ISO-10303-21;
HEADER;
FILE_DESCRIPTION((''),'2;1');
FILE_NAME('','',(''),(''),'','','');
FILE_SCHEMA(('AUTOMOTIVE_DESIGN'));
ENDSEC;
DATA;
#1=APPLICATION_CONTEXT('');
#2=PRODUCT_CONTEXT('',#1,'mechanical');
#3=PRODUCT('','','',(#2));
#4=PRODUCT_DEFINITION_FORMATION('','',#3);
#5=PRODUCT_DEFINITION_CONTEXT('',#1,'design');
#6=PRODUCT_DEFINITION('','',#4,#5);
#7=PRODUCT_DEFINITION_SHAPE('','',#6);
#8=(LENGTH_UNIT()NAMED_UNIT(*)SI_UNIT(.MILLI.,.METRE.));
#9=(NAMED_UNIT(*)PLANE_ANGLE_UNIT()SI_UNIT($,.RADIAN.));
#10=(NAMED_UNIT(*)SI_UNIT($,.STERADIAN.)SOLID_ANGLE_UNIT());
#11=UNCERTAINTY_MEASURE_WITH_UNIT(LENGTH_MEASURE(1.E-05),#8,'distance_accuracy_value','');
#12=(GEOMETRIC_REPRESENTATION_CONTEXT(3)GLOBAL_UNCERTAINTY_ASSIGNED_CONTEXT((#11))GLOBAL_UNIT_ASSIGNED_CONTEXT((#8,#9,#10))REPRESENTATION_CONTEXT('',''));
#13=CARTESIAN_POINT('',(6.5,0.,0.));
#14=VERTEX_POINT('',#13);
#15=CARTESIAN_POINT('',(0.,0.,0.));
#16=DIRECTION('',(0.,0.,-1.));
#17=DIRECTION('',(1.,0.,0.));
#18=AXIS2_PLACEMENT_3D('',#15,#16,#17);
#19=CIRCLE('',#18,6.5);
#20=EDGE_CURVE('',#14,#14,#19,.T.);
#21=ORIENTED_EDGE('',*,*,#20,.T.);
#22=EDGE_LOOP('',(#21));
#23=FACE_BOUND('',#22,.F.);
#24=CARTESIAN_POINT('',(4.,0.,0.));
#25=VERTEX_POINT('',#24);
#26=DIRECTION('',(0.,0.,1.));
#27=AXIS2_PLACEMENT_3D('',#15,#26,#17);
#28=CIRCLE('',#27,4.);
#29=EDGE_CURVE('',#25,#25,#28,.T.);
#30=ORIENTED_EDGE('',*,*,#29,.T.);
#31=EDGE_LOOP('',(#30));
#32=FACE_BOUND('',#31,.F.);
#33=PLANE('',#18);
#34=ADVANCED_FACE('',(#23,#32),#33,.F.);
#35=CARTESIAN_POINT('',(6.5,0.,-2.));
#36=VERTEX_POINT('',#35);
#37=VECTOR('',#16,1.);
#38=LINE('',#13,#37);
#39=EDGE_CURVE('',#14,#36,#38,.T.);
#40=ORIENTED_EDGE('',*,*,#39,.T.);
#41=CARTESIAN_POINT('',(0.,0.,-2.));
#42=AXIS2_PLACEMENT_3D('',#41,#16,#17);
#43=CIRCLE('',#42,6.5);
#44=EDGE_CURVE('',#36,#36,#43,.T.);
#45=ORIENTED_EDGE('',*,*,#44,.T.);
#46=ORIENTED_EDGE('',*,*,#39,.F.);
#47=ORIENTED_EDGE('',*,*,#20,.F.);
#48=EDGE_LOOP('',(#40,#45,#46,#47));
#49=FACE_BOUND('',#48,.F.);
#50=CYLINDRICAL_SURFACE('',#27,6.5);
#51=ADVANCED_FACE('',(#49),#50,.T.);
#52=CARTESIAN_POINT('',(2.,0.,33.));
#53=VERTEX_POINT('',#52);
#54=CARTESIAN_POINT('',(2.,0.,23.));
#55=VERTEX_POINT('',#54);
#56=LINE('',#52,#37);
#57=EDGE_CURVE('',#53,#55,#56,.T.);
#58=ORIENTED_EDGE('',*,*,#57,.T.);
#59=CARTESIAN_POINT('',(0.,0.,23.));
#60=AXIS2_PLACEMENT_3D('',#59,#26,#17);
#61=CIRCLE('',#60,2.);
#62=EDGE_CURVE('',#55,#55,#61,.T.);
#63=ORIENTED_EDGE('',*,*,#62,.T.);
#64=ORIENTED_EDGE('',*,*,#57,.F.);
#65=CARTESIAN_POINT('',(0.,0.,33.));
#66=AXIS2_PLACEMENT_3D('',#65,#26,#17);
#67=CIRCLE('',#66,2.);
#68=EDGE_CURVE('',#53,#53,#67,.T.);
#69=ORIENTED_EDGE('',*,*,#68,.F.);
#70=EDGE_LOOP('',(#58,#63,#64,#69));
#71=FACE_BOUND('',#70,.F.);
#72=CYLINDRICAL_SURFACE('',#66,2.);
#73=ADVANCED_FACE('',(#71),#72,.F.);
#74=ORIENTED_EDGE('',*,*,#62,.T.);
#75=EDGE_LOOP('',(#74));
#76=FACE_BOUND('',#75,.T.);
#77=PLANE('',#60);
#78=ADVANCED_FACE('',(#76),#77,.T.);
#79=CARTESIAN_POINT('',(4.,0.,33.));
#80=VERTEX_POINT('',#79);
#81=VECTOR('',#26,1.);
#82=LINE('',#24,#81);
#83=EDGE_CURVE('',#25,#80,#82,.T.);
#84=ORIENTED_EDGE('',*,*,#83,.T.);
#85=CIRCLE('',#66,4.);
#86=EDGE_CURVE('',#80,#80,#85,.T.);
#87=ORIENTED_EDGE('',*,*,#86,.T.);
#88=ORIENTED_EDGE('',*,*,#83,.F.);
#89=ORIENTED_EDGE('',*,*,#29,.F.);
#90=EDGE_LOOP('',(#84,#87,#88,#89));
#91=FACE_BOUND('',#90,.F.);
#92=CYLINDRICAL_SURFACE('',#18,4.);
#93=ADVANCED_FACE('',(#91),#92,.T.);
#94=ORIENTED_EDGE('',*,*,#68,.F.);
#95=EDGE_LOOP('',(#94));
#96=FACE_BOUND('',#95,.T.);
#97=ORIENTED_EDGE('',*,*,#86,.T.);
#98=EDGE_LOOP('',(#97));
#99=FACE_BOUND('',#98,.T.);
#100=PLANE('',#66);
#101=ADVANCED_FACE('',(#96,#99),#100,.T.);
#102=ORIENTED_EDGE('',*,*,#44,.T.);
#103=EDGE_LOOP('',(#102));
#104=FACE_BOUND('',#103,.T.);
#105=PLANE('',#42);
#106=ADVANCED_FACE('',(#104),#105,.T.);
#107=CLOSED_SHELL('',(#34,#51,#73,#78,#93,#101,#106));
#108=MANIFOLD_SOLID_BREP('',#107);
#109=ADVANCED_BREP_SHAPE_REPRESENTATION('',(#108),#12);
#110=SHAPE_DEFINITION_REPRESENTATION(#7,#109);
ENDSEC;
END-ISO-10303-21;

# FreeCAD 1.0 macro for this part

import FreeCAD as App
import Part
import Sketcher
from FreeCAD import Vector
Q = App.Units.Quantity

doc = App.newDocument("Part")
body = doc.addObject("PartDesign::Body", "Body")

sketch1 = body.newObject("Sketcher::SketchObject", "Sketch")
sketch1.AttachmentSupport = (doc.getObject("XY_Plane"), [""])
sketch1.MapMode = "FlatFace"
sketch1.addGeometry(Part.Circle(Vector(0, 0, 0), Vector(0, 0, 1), 4), False)
sketch1.addConstraint(Sketcher.Constraint("Coincident", 0, 3, -1, 1))
sketch1.addConstraint(Sketcher.Constraint("Diameter", 0, Q("8 mm")))
pad1 = body.newObject("PartDesign::Pad", "Pad")
pad1.Profile = sketch1
pad1.Length = 33

sketch2 = body.newObject("Sketcher::SketchObject", "Sketch001")
sketch2.AttachmentSupport = (doc.getObject("XY_Plane"), [""])
sketch2.MapMode = "FlatFace"
sketch2.addGeometry(Part.Circle(Vector(0, 0, 0), Vector(0, 0, 1), 6), False)
sketch2.addConstraint(Sketcher.Constraint("Coincident", 0, 3, -1, 1))
sketch2.addConstraint(Sketcher.Constraint("Diameter", 0, Q("13 mm")))
pad2 = body.newObject("PartDesign::Pad", "Pad001")
pad2.Profile = sketch2
pad2.Length = 2
pad2.Reversed = True

sketch3 = body.newObject("Sketcher::SketchObject", "Sketch002")
sketch3.AttachmentSupport = (doc.getObject("XY_Plane"), [""])
sketch3.MapMode = "FlatFace"
sketch3.AttachmentOffset = App.Placement(Vector(0, 0, 33), App.Rotation())
sketch3.addGeometry(Part.Circle(Vector(0, 0, 0), Vector(0, 0, 1), 2), False)
sketch3.addConstraint(Sketcher.Constraint("Coincident", 0, 3, -1, 1))
sketch3.addConstraint(Sketcher.Constraint("Diameter", 0, Q("4 mm")))
pocket1 = body.newObject("PartDesign::Pocket", "Pocket")
pocket1.Profile = sketch3
pocket1.Length = 10

doc.recompute()
